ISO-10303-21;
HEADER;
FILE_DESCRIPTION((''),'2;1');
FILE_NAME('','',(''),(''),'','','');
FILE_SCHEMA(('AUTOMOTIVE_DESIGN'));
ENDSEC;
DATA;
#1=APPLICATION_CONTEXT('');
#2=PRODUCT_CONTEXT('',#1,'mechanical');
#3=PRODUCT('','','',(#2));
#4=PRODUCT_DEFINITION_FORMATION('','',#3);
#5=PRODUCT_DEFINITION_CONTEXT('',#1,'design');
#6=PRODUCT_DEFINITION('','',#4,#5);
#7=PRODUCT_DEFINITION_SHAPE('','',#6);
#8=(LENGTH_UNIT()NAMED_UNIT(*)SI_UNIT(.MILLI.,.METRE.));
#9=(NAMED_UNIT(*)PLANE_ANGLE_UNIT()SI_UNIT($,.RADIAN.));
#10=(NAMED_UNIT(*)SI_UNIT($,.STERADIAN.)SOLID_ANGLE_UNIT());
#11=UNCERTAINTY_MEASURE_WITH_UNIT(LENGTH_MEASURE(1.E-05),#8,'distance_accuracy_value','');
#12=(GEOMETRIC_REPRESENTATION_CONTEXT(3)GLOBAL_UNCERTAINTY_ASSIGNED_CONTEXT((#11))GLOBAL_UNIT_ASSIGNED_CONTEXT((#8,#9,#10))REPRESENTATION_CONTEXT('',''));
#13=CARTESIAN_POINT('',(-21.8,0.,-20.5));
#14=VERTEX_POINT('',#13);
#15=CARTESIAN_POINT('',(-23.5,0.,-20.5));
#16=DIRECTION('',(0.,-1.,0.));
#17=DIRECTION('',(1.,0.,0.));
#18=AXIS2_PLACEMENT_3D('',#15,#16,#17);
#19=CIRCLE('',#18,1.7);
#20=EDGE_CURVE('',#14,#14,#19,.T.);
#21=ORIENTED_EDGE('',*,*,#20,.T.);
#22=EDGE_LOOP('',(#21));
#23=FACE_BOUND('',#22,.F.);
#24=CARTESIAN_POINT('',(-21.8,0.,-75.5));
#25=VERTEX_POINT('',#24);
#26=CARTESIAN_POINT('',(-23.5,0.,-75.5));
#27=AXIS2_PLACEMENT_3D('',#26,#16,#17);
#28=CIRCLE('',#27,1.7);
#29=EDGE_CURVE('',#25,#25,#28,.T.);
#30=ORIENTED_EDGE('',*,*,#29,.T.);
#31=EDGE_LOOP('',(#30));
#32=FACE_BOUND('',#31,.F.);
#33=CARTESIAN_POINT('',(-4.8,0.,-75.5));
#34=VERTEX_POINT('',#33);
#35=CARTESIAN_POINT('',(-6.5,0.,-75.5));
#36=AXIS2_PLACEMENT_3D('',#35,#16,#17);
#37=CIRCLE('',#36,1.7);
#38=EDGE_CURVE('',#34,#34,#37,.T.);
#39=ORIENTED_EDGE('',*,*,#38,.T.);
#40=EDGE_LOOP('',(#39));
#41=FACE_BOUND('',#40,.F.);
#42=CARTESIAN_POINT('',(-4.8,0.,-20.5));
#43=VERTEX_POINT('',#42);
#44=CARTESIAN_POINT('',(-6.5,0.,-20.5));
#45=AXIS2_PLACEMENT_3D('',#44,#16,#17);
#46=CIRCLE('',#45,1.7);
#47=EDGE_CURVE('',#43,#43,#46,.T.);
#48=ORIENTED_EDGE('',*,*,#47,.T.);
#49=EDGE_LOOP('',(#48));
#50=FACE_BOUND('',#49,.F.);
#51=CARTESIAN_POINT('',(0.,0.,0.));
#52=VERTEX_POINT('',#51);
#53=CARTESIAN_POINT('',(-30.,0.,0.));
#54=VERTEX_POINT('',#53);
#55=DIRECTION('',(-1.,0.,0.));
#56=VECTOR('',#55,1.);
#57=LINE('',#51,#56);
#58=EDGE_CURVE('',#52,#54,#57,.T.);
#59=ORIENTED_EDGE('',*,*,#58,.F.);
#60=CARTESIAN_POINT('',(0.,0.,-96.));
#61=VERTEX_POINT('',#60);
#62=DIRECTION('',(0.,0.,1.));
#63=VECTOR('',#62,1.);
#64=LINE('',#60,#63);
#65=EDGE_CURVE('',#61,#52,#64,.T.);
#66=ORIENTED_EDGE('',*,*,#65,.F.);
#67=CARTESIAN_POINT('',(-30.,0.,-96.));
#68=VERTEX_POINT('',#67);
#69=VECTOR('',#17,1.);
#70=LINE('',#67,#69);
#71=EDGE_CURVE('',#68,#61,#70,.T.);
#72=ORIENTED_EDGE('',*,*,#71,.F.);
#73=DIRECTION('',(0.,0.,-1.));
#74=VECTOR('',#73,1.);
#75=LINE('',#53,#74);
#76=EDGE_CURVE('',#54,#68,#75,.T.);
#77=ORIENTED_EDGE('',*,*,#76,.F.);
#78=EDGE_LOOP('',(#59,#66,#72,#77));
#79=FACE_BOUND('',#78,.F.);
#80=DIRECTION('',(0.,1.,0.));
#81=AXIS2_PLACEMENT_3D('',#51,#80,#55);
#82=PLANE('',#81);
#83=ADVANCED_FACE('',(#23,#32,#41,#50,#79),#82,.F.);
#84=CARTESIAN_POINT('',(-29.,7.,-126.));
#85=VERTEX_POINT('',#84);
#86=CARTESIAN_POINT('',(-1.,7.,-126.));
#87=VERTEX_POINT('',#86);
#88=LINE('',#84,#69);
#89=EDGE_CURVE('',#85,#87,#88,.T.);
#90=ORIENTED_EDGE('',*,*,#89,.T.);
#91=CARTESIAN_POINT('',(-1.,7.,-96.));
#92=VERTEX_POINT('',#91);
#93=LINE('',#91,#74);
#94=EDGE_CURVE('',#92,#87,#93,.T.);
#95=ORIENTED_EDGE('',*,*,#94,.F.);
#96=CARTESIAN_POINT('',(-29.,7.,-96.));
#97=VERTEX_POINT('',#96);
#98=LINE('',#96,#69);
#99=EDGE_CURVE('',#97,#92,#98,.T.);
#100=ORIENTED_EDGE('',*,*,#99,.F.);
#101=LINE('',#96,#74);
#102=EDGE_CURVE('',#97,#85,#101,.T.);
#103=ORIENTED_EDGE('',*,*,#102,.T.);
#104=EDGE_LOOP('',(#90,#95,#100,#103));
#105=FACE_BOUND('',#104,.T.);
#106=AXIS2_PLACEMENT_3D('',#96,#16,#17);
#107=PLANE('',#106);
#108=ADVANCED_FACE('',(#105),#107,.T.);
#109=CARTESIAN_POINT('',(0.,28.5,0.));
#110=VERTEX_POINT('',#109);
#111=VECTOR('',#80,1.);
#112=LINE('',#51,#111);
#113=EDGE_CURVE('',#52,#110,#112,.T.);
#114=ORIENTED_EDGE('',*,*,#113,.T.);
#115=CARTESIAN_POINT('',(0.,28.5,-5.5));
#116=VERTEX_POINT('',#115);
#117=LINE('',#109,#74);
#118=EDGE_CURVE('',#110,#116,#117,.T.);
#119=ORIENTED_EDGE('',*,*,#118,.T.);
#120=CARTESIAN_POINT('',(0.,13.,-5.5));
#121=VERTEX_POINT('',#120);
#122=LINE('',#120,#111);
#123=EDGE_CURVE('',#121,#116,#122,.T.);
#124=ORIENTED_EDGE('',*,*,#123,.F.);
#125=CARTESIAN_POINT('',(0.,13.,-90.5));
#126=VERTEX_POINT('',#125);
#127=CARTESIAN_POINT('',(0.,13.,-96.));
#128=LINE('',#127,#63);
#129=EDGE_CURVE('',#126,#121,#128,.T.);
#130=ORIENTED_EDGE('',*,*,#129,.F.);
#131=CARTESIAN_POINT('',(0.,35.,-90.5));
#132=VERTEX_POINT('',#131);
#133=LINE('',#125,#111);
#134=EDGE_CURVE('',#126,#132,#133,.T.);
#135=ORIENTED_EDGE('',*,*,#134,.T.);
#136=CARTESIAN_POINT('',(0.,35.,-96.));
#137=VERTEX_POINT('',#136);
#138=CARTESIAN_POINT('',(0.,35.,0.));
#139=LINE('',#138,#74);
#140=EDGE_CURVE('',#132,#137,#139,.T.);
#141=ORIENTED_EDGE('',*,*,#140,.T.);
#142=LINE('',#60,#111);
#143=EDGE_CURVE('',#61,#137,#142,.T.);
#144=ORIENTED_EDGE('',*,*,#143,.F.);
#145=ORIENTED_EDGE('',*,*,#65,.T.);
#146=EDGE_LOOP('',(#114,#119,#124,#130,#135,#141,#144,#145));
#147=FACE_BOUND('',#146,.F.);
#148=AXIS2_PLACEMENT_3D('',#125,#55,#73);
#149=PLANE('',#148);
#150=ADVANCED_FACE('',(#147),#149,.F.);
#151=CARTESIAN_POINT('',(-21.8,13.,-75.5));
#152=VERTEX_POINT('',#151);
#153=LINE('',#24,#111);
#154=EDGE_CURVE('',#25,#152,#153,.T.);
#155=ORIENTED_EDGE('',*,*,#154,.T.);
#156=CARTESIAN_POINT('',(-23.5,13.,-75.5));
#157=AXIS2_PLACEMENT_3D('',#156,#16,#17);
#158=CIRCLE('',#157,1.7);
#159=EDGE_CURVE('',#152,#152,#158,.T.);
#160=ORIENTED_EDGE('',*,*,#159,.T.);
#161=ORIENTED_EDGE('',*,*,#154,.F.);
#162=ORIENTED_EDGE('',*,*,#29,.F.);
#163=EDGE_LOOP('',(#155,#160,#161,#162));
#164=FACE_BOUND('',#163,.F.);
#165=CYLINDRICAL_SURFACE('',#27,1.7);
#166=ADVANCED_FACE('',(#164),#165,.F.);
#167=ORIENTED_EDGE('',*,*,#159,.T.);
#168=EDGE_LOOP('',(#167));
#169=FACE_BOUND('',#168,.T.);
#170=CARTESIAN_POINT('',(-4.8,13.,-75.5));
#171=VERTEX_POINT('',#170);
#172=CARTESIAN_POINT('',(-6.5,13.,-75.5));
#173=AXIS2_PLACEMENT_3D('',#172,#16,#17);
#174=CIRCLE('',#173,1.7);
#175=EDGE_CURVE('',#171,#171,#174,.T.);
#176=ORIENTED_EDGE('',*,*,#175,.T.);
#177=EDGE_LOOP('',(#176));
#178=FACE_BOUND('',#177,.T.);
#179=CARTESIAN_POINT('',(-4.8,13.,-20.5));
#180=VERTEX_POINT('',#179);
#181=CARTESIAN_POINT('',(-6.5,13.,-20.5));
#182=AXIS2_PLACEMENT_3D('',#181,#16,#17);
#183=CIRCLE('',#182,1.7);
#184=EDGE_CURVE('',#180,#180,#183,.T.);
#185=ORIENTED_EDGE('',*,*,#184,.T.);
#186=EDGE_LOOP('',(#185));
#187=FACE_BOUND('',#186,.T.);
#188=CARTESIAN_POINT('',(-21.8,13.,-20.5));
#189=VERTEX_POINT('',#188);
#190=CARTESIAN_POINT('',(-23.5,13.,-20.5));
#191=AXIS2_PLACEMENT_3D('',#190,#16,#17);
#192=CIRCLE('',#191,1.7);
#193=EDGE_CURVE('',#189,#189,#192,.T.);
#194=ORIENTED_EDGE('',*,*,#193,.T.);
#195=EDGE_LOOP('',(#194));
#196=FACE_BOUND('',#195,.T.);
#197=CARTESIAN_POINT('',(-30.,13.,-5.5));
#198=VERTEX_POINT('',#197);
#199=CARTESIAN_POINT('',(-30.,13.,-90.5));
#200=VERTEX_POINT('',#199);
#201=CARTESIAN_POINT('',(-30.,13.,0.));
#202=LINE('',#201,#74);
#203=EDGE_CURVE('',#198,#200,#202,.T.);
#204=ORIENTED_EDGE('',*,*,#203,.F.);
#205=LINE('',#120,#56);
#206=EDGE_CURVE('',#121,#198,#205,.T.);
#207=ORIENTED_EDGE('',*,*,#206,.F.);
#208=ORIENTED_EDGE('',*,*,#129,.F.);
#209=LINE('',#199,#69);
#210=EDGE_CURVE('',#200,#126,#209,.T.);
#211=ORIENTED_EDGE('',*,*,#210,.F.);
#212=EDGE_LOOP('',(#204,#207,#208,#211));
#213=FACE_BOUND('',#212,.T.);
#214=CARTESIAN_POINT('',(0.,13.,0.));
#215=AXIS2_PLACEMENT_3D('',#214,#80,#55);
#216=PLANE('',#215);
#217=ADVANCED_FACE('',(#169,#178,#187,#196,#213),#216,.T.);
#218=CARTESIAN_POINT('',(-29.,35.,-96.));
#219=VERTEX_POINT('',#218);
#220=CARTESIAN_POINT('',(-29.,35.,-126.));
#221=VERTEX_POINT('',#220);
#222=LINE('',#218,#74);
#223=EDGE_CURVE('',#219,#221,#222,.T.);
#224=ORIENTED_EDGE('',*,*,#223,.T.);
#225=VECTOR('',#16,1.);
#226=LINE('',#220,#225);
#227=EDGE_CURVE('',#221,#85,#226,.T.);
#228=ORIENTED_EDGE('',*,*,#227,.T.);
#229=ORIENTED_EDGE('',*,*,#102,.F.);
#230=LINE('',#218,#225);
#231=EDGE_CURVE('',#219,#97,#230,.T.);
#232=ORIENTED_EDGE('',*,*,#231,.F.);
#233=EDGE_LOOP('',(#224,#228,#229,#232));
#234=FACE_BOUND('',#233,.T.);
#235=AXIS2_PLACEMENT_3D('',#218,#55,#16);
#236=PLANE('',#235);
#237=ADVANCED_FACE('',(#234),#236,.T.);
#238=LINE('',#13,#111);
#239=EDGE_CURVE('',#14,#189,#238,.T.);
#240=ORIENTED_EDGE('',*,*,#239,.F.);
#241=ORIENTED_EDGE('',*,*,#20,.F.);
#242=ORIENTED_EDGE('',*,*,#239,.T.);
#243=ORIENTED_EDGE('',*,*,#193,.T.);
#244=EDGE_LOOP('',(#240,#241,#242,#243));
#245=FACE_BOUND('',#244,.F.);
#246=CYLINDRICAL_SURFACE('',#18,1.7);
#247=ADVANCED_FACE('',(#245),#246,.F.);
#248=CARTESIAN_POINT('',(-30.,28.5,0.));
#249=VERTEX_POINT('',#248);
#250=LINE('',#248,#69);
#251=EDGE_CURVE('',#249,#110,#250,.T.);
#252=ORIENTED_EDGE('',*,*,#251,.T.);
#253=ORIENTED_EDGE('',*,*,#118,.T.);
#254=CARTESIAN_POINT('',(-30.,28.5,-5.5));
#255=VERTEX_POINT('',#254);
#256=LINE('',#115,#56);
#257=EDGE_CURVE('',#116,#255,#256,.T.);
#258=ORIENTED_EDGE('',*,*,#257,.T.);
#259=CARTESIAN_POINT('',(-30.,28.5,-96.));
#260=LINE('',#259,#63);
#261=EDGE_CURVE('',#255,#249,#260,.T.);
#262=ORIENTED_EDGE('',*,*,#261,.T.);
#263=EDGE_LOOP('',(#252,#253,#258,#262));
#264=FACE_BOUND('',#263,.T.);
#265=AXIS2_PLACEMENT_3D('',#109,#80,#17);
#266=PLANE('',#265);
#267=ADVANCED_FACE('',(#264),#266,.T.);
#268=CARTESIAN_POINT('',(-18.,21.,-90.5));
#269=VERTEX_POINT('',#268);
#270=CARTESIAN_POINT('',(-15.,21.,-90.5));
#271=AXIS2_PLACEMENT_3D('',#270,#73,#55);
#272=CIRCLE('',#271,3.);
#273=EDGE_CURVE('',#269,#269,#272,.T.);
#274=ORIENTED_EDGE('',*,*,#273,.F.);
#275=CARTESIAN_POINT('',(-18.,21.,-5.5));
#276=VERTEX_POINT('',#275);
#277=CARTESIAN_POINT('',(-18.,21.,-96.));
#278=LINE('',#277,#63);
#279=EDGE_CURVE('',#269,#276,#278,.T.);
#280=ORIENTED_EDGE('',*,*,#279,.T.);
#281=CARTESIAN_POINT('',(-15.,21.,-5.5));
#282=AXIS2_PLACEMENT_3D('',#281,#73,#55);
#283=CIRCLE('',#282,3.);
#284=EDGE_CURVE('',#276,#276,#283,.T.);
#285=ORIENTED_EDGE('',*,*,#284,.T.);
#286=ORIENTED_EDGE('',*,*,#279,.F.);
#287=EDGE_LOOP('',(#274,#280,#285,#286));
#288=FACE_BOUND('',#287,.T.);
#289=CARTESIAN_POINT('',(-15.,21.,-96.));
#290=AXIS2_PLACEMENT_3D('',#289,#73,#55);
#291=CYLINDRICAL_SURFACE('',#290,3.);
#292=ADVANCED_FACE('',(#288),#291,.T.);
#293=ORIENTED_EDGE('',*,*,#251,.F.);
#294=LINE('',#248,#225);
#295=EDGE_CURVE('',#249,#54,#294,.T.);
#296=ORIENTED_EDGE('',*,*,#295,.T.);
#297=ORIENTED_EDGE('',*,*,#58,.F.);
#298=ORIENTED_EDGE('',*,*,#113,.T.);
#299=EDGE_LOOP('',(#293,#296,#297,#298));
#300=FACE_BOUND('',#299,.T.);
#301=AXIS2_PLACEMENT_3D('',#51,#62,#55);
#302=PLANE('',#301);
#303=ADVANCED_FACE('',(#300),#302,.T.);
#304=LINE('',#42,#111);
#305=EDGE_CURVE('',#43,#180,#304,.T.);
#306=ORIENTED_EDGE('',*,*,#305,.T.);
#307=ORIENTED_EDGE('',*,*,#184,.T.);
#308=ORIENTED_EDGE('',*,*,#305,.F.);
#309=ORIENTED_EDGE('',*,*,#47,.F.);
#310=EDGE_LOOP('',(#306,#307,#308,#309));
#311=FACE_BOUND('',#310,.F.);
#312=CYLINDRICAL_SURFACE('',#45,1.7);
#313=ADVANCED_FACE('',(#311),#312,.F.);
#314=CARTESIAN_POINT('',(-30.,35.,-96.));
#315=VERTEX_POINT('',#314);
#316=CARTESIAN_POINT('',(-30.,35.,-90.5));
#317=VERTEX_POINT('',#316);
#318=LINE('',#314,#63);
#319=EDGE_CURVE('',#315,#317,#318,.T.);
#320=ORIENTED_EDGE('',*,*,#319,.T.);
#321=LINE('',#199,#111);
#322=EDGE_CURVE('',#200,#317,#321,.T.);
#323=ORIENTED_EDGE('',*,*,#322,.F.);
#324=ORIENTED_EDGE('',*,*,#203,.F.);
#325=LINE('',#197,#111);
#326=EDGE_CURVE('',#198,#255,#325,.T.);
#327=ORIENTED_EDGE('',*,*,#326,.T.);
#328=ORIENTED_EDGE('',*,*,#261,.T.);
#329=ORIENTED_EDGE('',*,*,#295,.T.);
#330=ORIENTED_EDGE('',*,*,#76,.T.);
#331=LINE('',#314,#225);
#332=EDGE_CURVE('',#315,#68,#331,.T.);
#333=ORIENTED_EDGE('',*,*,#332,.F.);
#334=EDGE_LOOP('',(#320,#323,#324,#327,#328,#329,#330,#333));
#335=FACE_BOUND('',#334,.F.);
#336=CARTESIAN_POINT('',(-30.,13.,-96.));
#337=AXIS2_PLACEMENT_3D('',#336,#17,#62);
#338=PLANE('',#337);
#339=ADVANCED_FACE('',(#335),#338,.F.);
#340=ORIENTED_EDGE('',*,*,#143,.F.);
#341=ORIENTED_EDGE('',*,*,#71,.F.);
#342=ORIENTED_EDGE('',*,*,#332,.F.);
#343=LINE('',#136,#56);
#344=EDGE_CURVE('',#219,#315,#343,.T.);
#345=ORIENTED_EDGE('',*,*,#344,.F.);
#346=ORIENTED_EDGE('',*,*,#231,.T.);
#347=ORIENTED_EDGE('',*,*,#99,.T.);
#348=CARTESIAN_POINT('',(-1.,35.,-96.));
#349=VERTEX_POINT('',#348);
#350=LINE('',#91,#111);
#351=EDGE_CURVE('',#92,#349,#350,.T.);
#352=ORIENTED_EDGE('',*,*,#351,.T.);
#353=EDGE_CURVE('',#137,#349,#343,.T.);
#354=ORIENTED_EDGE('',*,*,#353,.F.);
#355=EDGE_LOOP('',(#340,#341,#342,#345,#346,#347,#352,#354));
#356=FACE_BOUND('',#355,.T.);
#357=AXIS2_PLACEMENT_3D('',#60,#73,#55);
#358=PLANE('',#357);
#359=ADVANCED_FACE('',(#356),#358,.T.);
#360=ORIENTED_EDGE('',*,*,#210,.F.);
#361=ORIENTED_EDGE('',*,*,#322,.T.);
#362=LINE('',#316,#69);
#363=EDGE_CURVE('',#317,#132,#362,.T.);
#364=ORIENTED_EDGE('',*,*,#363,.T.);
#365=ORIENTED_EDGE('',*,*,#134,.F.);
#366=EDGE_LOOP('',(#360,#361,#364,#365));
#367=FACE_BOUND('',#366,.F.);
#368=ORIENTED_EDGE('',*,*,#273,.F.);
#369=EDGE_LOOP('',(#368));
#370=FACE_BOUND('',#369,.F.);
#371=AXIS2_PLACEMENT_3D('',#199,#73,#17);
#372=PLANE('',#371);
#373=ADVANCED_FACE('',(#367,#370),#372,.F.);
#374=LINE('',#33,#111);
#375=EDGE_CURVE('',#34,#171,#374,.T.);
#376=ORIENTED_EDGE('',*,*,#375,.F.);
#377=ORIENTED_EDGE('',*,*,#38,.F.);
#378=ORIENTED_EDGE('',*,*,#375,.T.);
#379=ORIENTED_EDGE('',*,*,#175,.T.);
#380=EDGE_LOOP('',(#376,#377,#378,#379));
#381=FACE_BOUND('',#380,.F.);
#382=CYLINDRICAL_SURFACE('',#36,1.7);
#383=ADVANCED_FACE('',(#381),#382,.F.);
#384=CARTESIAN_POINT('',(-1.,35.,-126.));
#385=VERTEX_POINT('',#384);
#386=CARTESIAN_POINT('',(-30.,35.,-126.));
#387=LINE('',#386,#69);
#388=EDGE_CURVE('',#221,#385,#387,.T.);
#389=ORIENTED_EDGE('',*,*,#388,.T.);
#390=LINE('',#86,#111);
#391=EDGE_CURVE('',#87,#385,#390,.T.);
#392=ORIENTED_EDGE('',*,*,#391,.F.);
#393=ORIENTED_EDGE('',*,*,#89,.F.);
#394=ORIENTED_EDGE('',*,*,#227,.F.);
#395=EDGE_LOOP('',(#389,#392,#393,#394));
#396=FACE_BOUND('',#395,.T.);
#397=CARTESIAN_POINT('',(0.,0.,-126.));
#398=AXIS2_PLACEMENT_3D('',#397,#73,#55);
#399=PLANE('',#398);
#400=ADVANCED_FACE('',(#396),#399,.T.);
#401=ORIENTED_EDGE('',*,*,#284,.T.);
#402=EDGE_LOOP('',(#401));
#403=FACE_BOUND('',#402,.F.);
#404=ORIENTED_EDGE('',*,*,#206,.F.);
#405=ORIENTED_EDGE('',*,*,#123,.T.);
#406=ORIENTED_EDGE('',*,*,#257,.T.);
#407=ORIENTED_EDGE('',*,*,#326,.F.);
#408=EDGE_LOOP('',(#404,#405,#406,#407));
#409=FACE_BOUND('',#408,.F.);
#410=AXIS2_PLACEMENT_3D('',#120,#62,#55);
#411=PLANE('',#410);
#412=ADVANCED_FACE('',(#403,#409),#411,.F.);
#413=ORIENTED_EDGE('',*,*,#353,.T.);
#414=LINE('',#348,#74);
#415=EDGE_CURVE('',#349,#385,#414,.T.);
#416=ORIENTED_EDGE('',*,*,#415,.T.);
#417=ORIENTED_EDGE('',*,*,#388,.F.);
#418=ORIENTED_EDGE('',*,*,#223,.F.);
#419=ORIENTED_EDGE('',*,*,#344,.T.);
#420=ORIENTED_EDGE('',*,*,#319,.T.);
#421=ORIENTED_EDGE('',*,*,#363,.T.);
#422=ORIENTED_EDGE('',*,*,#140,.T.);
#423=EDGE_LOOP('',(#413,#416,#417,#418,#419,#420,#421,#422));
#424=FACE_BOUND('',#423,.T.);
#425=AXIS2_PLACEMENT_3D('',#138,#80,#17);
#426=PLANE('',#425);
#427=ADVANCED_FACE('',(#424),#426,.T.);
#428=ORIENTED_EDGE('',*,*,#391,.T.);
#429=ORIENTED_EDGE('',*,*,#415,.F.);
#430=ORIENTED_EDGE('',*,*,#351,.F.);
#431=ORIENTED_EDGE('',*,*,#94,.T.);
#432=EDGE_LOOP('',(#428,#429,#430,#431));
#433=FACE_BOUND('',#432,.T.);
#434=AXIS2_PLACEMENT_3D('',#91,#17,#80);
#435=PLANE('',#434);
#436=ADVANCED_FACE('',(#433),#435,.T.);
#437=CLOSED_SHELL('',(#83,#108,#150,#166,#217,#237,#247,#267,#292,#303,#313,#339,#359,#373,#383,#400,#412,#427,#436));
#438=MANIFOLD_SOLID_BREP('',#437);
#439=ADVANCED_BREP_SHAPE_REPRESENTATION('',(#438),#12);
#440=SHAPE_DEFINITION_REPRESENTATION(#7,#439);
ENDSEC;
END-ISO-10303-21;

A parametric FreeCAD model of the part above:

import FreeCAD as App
import Part
import Sketcher


def add_polygon(sketch, points):
    """Adds a closed chain of lines whose ends are joined by coincident constraints."""
    first, n = sketch.GeometryCount, len(points)
    for a, b in zip(points, points[1:] + points[:1]):
        sketch.addGeometry(Part.LineSegment(App.Vector(*a, 0), App.Vector(*b, 0)), False)
    for i in range(n):
        sketch.addConstraint(Sketcher.Constraint("Coincident", first + i, 2, first + (i + 1) % n, 1))

doc = App.newDocument("Part")
body = doc.addObject("PartDesign::Body", "Body")

# Sketch on XZ plane
sketch1 = doc.addObject("Sketcher::SketchObject", "Sketch")
body.addObject(sketch1)
sketch1.AttachmentSupport = (doc.XZ_Plane, [""])
sketch1.MapMode = "FlatFace"
add_polygon(sketch1, [(-30, 0), (0, 0), (0, -96), (-30, -96)])  # lines 0-3
sketch1.addConstraint(Sketcher.Constraint("Horizontal", 0))
sketch1.addConstraint(Sketcher.Constraint("Vertical", 1))
sketch1.addConstraint(Sketcher.Constraint("Horizontal", 2))
sketch1.addConstraint(Sketcher.Constraint("Vertical", 3))
sketch1.addConstraint(Sketcher.Constraint("Coincident", 0, 2, -1, 1))
sketch1.addConstraint(Sketcher.Constraint("DistanceX", 0, 1, 0, 2, 30.0))
sketch1.addConstraint(Sketcher.Constraint("DistanceY", 1, 2, 1, 1, 96.0))
pad1 = doc.addObject("PartDesign::Pad", "Pad")
body.addObject(pad1)
pad1.Profile = sketch1
pad1.Length = 13
pad1.Reversed = True

# Sketch on XZ plane
sketch2 = doc.addObject("Sketcher::SketchObject", "Sketch001")
body.addObject(sketch2)
sketch2.AttachmentSupport = (doc.XZ_Plane, [""])
sketch2.MapMode = "FlatFace"
sketch2.AttachmentOffset = App.Placement(App.Vector(0, 0, -13), App.Rotation())
add_polygon(sketch2, [(0, -6), (-30, -6), (-30, 0), (0, 0)])  # lines 0-3
sketch2.addConstraint(Sketcher.Constraint("Horizontal", 0))
sketch2.addConstraint(Sketcher.Constraint("Vertical", 1))
sketch2.addConstraint(Sketcher.Constraint("Horizontal", 2))
sketch2.addConstraint(Sketcher.Constraint("Vertical", 3))
sketch2.addConstraint(Sketcher.Constraint("Coincident", 2, 2, -1, 1))
sketch2.addConstraint(Sketcher.Constraint("DistanceY", 1, 1, 1, 2, 5.5))
sketch2.addConstraint(Sketcher.Constraint("DistanceX", 0, 2, 0, 1, 30.0))
pad2 = doc.addObject("PartDesign::Pad", "Pad001")
body.addObject(pad2)
pad2.Profile = sketch2
pad2.Length = 15.5
pad2.Reversed = True

# Sketch on XZ plane
sketch3 = doc.addObject("Sketcher::SketchObject", "Sketch002")
body.addObject(sketch3)
sketch3.AttachmentSupport = (doc.XZ_Plane, [""])
sketch3.MapMode = "FlatFace"
sketch3.AttachmentOffset = App.Placement(App.Vector(0, 0, -13), App.Rotation())
add_polygon(sketch3, [(-30, -90), (0, -90), (0, -96), (-30, -96)])  # lines 0-3
sketch3.addConstraint(Sketcher.Constraint("Horizontal", 0))
sketch3.addConstraint(Sketcher.Constraint("Vertical", 1))
sketch3.addConstraint(Sketcher.Constraint("Horizontal", 2))
sketch3.addConstraint(Sketcher.Constraint("Vertical", 3))
sketch3.addConstraint(Sketcher.Constraint("PointOnObject", 0, 2, -2))
sketch3.addConstraint(Sketcher.Constraint("DistanceY", 1, 2, 1, 1, 5.5))
sketch3.addConstraint(Sketcher.Constraint("DistanceX", 0, 1, 0, 2, 30.0))
sketch3.addConstraint(Sketcher.Constraint("DistanceY", 1, 2, -1, 1, 96.0))
pad3 = doc.addObject("PartDesign::Pad", "Pad002")
body.addObject(pad3)
pad3.Profile = sketch3
pad3.Length = 22
pad3.Reversed = True

# Sketch on XY plane
sketch4 = doc.addObject("Sketcher::SketchObject", "Sketch003")
body.addObject(sketch4)
sketch4.AttachmentSupport = (doc.XY_Plane, [""])
sketch4.MapMode = "FlatFace"
sketch4.AttachmentOffset = App.Placement(App.Vector(0, 0, -96), App.Rotation())
sketch4.addGeometry(Part.Circle(App.Vector(-15, 21, 0), App.Vector(0, 0, 1), 3), False)
sketch4.addConstraint(Sketcher.Constraint("Diameter", 0, 6.0))
sketch4.addConstraint(Sketcher.Constraint("DistanceX", 0, 3, -1, 1, 15.0))
sketch4.addConstraint(Sketcher.Constraint("DistanceY", -1, 1, 0, 3, 21.0))
pad4 = doc.addObject("PartDesign::Pad", "Pad003")
body.addObject(pad4)
pad4.Profile = sketch4
pad4.Length = 90.5

# Sketch on XY plane
sketch5 = doc.addObject("Sketcher::SketchObject", "Sketch004")
body.addObject(sketch5)
sketch5.AttachmentSupport = (doc.XY_Plane, [""])
sketch5.MapMode = "FlatFace"
sketch5.AttachmentOffset = App.Placement(App.Vector(0, 0, -96), App.Rotation())
add_polygon(sketch5, [(-29, 7), (-29, 35), (-1, 35), (-1, 7)])  # lines 0-3
sketch5.addConstraint(Sketcher.Constraint("Vertical", 0))
sketch5.addConstraint(Sketcher.Constraint("Horizontal", 1))
sketch5.addConstraint(Sketcher.Constraint("Vertical", 2))
sketch5.addConstraint(Sketcher.Constraint("Horizontal", 3))
sketch5.addConstraint(Sketcher.Constraint("Equal", 3, 0))
sketch5.addConstraint(Sketcher.Constraint("DistanceX", 1, 1, 1, 2, 28.0))
sketch5.addConstraint(Sketcher.Constraint("DistanceX", 0, 2, -1, 1, 29.0))
sketch5.addConstraint(Sketcher.Constraint("DistanceY", -1, 1, 0, 2, 35.0))
pad5 = doc.addObject("PartDesign::Pad", "Pad004")
body.addObject(pad5)
pad5.Profile = sketch5
pad5.Length = 30
pad5.Reversed = True

# Sketch on XZ plane
sketch6 = doc.addObject("Sketcher::SketchObject", "Sketch005")
body.addObject(sketch6)
sketch6.AttachmentSupport = (doc.XZ_Plane, [""])
sketch6.MapMode = "FlatFace"
sketch6.addGeometry(Part.Circle(App.Vector(-6.5, -75.5, 0), App.Vector(0, 0, 1), 1.7), False)
sketch6.addGeometry(Part.Circle(App.Vector(-23.5, -75.5, 0), App.Vector(0, 0, 1), 1.7), False)
sketch6.addGeometry(Part.Circle(App.Vector(-6.5, -20.5, 0), App.Vector(0, 0, 1), 1.7), False)
sketch6.addGeometry(Part.Circle(App.Vector(-23.5, -20.5, 0), App.Vector(0, 0, 1), 1.7), False)
sketch6.addConstraint(Sketcher.Constraint("Equal", 0, 1))
sketch6.addConstraint(Sketcher.Constraint("Equal", 1, 2))
sketch6.addConstraint(Sketcher.Constraint("Equal", 2, 3))
sketch6.addConstraint(Sketcher.Constraint("Horizontal", 0, 3, 1, 3))
sketch6.addConstraint(Sketcher.Constraint("Horizontal", 2, 3, 3, 3))
sketch6.addConstraint(Sketcher.Constraint("Vertical", 0, 3, 2, 3))
sketch6.addConstraint(Sketcher.Constraint("Vertical", 1, 3, 3, 3))
sketch6.addConstraint(Sketcher.Constraint("Diameter", 0, 3.4))
sketch6.addConstraint(Sketcher.Constraint("DistanceX", 1, 3, 0, 3, 17.0))
sketch6.addConstraint(Sketcher.Constraint("DistanceY", 0, 3, 2, 3, 55.0))
sketch6.addConstraint(Sketcher.Constraint("DistanceX", 0, 3, -1, 1, 6.5))
sketch6.addConstraint(Sketcher.Constraint("DistanceY", 2, 3, -1, 1, 20.5))
pocket1 = doc.addObject("PartDesign::Pocket", "Pocket")
body.addObject(pocket1)
pocket1.Profile = sketch6
pocket1.Length = 30

doc.recompute()
